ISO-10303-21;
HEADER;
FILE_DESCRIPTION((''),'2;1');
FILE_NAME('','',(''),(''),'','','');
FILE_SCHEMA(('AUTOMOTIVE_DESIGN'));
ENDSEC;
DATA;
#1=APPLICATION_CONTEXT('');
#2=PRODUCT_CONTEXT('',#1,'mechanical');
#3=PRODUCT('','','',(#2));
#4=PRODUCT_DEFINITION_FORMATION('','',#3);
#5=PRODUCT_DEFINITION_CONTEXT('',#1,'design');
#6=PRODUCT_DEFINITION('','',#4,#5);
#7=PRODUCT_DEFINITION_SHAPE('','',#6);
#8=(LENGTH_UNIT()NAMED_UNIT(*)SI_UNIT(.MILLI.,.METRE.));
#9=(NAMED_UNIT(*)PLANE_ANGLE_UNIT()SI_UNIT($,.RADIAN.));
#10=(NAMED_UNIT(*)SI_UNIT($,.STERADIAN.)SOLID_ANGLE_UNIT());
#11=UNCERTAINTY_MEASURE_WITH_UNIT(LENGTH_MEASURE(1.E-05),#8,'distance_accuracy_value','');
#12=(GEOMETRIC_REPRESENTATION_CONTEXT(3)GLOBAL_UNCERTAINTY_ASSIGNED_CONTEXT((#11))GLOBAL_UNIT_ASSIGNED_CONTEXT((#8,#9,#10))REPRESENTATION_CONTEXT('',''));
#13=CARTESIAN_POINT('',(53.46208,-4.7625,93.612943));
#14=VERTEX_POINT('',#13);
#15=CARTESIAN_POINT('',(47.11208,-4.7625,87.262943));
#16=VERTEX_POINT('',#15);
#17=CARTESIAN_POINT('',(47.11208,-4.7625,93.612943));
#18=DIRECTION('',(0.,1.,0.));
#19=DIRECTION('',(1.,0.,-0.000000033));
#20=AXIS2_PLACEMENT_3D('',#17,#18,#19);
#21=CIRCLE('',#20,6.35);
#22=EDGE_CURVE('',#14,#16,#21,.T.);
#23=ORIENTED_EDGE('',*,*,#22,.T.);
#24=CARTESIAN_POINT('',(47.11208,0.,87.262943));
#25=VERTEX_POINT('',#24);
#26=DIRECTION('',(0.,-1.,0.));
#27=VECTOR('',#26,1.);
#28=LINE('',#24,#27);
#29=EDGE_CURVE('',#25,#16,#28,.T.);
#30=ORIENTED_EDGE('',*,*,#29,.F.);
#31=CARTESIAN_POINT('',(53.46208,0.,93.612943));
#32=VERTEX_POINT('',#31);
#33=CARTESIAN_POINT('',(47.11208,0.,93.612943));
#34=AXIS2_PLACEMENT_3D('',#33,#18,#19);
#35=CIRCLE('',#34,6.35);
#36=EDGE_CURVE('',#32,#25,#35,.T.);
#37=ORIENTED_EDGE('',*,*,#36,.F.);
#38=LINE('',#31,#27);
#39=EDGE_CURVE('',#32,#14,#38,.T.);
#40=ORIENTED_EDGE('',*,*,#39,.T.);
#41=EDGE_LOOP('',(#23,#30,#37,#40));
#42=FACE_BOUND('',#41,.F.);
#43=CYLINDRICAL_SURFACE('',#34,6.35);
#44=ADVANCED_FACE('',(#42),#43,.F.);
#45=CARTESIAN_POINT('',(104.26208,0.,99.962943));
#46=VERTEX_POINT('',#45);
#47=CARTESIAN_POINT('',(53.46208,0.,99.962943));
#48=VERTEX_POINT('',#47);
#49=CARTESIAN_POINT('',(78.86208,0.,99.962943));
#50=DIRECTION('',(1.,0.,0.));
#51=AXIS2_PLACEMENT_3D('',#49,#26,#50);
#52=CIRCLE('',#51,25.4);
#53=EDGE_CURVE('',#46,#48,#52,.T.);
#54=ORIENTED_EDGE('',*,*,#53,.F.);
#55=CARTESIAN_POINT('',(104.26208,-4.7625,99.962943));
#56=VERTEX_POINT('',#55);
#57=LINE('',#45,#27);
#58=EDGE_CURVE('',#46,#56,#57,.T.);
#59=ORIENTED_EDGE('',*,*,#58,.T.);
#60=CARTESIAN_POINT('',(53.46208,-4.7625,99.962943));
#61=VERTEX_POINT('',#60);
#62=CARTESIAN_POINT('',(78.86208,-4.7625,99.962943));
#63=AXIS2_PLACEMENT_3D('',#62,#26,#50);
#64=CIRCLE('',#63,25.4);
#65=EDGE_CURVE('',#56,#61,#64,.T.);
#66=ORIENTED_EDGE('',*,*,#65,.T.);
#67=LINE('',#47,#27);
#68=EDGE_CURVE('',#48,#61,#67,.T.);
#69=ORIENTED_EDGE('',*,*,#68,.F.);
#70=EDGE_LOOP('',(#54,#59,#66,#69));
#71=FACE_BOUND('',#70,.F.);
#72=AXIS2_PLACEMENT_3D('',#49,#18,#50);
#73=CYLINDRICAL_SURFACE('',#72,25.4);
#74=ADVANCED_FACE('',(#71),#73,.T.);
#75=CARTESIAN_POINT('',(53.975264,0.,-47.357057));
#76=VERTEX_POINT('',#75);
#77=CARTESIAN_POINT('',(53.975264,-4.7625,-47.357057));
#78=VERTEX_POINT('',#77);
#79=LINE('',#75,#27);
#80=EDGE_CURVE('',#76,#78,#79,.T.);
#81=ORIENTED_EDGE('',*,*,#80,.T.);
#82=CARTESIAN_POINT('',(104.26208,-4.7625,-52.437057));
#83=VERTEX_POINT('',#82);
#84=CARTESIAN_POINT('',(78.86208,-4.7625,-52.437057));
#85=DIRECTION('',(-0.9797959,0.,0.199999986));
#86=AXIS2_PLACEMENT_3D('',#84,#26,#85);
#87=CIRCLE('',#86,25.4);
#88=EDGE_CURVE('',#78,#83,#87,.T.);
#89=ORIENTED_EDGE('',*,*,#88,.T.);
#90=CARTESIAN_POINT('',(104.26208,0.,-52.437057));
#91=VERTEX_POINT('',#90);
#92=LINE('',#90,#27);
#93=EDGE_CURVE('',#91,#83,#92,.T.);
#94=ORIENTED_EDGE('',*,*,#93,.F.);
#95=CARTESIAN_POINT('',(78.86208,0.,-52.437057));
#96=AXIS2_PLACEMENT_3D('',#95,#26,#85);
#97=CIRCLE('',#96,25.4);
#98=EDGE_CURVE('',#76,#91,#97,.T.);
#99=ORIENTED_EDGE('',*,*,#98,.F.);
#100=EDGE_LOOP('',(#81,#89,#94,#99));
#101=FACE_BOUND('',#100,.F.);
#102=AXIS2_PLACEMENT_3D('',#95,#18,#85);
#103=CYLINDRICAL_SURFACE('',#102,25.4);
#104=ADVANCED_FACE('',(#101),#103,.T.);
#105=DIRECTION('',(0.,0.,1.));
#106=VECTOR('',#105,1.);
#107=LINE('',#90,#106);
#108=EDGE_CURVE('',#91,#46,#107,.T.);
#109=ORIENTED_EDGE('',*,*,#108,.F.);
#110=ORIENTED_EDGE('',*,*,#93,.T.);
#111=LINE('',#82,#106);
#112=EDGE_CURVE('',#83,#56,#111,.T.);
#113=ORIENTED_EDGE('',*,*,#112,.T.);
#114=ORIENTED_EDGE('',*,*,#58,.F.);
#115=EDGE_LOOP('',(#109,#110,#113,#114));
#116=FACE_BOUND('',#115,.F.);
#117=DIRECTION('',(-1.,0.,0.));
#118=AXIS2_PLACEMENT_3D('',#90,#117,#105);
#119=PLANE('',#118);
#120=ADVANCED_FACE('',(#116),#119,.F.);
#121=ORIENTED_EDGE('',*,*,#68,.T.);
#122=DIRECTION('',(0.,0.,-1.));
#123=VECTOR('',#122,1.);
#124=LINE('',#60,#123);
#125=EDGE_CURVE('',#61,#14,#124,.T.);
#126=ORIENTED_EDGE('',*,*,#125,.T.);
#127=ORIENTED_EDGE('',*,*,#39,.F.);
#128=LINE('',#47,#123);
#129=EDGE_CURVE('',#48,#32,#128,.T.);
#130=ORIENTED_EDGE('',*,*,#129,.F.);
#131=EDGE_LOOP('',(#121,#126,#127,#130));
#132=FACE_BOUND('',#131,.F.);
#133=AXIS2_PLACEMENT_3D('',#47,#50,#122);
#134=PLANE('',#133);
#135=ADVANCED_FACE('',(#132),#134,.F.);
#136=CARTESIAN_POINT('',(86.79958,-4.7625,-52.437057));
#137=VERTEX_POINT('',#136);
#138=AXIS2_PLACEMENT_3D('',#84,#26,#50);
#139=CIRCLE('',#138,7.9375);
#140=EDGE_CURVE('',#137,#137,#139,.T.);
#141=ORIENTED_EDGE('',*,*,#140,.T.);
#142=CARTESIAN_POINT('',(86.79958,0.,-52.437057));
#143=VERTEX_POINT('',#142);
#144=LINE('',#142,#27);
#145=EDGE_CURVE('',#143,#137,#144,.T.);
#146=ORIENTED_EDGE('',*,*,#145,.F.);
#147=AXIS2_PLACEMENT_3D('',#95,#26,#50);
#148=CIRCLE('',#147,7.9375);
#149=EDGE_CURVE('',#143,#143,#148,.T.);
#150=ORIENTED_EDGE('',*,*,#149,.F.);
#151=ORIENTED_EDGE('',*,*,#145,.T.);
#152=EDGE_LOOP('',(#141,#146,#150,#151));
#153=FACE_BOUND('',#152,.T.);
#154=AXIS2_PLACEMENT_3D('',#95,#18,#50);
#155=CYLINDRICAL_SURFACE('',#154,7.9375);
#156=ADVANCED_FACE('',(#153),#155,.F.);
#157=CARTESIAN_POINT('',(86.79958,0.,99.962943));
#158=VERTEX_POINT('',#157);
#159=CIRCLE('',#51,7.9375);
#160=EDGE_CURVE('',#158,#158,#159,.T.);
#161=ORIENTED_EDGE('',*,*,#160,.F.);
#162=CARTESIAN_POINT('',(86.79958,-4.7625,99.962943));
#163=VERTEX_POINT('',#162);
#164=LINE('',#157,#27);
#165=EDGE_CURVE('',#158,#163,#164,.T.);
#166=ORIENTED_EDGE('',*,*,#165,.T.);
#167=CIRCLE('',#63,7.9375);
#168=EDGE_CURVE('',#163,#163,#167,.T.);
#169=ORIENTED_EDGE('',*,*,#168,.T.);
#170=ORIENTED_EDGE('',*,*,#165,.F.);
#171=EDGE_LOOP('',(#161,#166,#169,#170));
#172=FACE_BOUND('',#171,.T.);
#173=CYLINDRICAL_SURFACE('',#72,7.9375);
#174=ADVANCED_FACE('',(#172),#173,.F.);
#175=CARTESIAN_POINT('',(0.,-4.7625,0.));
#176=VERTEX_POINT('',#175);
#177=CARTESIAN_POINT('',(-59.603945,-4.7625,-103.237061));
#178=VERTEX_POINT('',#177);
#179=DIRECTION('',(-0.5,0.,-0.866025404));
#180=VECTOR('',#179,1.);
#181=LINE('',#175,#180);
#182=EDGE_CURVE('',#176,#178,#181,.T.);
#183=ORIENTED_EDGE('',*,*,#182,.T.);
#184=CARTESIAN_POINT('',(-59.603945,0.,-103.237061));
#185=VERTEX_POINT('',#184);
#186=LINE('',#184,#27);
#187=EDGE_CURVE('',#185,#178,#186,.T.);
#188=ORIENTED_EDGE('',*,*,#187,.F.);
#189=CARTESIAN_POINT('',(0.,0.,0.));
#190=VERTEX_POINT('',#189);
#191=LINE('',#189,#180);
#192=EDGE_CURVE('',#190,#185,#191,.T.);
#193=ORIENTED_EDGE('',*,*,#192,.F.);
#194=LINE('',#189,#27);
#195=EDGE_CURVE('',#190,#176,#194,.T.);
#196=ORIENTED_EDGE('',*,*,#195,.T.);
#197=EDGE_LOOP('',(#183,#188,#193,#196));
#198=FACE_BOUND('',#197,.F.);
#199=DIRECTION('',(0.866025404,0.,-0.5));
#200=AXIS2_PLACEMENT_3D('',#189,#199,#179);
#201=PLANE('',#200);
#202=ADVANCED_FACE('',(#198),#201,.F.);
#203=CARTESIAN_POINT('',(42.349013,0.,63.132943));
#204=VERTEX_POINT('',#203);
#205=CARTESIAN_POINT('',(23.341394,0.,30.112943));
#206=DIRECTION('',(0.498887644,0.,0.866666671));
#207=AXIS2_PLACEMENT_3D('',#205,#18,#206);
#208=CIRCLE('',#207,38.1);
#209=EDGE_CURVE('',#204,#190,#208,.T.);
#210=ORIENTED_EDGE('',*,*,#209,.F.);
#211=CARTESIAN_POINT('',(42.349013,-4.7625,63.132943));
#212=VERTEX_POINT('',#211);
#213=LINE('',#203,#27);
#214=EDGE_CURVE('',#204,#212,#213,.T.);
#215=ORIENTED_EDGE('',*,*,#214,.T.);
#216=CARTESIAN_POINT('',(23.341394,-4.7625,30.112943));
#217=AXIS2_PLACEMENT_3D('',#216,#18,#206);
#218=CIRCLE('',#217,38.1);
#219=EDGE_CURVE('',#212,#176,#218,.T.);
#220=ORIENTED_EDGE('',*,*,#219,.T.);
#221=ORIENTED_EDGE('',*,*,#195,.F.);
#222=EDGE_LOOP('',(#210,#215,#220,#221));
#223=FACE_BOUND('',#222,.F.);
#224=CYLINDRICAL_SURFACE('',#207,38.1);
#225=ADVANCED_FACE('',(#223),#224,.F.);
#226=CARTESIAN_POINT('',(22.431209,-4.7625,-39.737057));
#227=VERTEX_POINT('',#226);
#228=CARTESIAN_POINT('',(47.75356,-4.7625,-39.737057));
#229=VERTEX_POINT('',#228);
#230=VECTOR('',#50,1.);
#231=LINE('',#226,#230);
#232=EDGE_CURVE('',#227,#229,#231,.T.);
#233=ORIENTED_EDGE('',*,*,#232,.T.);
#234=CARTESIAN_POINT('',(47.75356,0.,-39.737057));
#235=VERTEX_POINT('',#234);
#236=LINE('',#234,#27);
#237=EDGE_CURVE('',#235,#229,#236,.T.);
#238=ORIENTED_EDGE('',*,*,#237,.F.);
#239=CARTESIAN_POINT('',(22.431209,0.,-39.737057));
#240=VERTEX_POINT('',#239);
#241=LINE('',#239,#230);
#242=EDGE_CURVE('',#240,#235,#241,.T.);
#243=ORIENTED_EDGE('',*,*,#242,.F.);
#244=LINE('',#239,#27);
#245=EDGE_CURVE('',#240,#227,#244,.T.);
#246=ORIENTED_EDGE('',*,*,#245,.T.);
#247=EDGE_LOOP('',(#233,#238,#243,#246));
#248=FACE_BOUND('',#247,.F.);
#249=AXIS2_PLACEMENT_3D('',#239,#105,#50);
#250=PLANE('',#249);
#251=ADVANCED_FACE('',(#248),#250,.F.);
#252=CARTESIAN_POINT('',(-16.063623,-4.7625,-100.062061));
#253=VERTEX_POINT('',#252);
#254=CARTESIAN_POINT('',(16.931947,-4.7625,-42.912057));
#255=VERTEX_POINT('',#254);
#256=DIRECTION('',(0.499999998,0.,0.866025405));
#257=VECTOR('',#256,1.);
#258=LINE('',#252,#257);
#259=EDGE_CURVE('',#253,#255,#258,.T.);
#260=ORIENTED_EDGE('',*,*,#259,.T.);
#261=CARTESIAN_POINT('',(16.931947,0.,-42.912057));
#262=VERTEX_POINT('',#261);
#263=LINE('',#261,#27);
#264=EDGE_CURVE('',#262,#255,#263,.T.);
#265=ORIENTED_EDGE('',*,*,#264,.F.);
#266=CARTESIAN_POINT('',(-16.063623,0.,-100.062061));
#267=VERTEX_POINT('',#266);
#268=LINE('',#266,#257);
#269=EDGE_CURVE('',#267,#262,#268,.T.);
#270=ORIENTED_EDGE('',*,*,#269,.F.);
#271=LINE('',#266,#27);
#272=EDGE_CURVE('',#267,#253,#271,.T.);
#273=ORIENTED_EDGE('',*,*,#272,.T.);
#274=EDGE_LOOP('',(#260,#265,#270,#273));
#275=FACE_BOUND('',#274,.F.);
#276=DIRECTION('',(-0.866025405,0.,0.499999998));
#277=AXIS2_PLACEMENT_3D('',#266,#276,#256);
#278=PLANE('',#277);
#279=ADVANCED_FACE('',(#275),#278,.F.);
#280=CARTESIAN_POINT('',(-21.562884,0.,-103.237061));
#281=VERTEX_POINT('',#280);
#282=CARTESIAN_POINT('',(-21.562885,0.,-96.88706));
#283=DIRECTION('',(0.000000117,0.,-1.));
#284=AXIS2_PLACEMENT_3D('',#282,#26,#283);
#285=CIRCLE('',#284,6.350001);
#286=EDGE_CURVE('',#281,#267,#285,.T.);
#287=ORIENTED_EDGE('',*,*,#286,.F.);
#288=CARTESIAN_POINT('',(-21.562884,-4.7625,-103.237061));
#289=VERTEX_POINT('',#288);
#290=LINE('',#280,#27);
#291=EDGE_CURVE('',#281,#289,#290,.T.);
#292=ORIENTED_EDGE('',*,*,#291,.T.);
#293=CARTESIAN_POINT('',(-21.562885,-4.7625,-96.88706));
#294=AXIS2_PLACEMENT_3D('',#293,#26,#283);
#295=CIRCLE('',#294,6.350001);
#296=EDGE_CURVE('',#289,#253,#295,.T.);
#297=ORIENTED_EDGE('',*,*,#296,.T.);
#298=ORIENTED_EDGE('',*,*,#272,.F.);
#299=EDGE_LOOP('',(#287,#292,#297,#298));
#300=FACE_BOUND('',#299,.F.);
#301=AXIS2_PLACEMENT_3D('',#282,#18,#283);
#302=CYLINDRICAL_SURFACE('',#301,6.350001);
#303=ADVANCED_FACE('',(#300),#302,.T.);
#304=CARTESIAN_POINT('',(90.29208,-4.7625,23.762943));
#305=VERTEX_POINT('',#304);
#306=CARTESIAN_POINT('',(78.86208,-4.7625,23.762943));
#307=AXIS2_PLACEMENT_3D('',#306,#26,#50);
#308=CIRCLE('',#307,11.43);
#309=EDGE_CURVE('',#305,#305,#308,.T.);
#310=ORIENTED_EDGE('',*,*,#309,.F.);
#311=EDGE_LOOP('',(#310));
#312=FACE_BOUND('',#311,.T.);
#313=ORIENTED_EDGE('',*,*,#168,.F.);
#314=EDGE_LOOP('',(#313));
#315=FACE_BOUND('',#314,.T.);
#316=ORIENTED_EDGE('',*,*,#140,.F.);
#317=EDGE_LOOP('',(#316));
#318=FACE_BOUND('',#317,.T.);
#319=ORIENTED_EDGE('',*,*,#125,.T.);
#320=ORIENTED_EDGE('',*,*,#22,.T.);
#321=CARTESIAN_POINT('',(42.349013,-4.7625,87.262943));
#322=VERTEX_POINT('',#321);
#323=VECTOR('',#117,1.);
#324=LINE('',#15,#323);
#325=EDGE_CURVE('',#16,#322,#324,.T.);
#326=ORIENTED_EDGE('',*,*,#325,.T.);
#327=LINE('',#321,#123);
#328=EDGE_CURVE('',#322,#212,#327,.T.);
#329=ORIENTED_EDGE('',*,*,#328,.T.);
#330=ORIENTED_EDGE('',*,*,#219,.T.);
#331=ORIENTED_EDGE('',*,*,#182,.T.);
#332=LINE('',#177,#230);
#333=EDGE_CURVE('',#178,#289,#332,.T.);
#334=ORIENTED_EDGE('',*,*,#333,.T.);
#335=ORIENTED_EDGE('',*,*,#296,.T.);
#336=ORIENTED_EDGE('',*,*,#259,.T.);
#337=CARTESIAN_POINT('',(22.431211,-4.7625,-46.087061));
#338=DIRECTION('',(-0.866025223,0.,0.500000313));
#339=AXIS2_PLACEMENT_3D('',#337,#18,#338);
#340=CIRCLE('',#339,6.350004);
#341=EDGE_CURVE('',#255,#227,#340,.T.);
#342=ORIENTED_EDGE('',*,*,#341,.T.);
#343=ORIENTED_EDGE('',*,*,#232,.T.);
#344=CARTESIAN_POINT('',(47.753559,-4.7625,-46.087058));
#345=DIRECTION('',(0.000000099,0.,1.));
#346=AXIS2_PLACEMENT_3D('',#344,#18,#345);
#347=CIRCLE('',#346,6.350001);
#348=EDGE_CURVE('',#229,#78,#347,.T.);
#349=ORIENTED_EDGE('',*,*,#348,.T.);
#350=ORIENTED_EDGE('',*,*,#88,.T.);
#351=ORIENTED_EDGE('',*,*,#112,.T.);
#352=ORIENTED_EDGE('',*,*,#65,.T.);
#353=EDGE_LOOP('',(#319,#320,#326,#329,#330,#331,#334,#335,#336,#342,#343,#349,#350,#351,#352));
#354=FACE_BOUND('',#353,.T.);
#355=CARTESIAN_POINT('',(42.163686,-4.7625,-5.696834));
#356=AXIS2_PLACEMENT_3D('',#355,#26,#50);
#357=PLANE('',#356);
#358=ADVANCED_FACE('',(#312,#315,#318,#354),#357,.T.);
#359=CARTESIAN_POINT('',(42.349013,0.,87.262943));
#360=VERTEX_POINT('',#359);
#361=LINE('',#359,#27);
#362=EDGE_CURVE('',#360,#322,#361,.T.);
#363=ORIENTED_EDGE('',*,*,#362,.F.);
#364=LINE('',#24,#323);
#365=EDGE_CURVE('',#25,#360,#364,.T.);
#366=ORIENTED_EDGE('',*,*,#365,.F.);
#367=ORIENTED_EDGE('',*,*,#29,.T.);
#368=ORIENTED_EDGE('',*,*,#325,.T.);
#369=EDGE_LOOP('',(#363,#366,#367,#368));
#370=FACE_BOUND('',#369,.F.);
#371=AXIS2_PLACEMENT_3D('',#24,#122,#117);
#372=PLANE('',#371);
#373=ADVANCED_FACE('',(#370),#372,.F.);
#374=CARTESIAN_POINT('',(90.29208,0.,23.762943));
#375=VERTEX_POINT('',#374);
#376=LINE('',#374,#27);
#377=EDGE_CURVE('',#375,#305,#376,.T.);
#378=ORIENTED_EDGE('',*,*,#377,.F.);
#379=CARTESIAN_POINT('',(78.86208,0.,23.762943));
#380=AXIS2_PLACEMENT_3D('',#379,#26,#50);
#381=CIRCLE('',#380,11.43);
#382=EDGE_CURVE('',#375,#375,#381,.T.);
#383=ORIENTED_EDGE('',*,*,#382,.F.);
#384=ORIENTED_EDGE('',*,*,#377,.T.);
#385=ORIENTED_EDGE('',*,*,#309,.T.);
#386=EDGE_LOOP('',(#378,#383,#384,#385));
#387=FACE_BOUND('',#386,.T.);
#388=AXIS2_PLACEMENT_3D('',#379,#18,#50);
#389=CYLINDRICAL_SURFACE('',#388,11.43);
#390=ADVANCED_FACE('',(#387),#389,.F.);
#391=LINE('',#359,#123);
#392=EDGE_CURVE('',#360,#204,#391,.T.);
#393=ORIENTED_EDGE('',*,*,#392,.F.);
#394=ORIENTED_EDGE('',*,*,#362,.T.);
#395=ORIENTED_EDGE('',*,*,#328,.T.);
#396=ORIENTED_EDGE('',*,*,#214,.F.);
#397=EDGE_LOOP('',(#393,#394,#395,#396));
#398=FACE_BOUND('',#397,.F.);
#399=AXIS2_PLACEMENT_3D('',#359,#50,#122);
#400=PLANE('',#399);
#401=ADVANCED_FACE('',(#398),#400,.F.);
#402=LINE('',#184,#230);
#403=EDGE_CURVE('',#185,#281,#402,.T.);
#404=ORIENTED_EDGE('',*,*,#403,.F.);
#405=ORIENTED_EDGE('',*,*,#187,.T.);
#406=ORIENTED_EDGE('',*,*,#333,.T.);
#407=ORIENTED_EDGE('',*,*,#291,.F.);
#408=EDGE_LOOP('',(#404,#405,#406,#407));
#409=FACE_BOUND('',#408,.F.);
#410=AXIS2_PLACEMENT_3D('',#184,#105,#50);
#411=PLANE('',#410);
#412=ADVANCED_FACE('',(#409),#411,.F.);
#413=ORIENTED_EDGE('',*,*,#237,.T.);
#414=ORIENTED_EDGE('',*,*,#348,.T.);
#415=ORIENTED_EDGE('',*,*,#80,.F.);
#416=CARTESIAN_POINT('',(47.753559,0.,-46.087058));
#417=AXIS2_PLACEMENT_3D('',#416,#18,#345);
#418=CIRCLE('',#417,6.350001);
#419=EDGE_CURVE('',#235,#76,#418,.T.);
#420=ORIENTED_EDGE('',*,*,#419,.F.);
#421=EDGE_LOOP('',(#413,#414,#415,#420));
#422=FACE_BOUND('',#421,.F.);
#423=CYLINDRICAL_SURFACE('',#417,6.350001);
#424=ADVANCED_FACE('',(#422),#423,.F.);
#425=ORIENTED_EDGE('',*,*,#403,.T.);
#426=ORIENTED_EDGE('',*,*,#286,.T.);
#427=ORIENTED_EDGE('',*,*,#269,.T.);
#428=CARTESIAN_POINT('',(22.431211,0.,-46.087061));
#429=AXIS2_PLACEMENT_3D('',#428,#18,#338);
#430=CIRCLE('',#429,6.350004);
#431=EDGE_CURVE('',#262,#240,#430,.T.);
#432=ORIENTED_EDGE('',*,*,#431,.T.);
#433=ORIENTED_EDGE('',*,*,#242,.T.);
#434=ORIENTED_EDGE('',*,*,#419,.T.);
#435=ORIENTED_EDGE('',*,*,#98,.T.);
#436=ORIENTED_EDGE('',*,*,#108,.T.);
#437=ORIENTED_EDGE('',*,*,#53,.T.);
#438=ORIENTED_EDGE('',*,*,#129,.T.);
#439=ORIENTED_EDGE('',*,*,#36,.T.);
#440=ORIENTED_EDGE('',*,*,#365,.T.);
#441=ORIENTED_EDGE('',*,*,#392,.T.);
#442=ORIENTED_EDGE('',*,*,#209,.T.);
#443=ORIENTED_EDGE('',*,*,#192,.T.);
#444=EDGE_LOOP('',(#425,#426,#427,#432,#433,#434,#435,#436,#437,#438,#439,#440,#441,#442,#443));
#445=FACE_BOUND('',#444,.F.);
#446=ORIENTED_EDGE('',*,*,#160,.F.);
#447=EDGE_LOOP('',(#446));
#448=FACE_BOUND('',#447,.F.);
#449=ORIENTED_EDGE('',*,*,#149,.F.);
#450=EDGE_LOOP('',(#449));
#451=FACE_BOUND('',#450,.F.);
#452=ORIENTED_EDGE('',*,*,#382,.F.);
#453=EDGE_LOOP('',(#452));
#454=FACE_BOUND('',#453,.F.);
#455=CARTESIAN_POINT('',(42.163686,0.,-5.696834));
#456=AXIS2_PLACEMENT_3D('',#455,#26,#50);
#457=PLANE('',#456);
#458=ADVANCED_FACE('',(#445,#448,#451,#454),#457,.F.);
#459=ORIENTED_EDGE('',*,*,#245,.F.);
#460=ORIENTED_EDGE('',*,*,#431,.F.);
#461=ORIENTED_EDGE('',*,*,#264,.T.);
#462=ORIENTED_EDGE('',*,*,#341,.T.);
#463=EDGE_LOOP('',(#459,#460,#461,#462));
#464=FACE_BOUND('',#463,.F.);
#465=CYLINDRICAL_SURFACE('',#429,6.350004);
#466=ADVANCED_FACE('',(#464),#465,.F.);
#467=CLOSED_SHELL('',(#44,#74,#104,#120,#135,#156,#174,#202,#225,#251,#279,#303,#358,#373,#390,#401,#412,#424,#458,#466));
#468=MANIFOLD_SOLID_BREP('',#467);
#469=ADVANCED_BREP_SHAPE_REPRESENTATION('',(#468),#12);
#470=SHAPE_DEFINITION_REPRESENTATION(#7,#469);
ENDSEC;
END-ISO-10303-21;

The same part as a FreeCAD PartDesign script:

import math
import FreeCAD as App
import Part
import Sketcher

V = App.Vector
Q = App.Units.Quantity

doc = App.newDocument("Part")
body = doc.addObject("PartDesign::Body", "Body")

sketch1 = doc.addObject("Sketcher::SketchObject", "Sketch")
body.addObject(sketch1)
sketch1.AttachmentSupport = (doc.XZ_Plane, [""])
sketch1.MapMode = "FlatFace"
sketch1.addGeometry([
    Part.LineSegment(V(47.1, 87.3, 0), V(42.3, 87.3, 0)),
    Part.LineSegment(V(42.3, 87.3, 0), V(42.3, 63.1, 0)),
    Part.ArcOfCircle(Part.Circle(V(23.3, 30.1, 0), V(0, 0, 1), 38.1), math.radians(-128), math.radians(60)),
    Part.LineSegment(V(0, 0, 0), V(-59.6, -103.2, 0)),
    Part.LineSegment(V(-59.6, -103.2, 0), V(-21.6, -103.2, 0)),
    Part.ArcOfCircle(Part.Circle(V(-21.6, -96.9, 0), V(0, 0, 1), 6.4), math.radians(-90), math.radians(-30)),
    Part.LineSegment(V(-16.1, -100.1, 0), V(16.9, -42.9, 0)),
    Part.ArcOfCircle(Part.Circle(V(22.4, -46.1, 0), V(0, 0, 1), 6.4), math.radians(90), math.radians(150)),
    Part.LineSegment(V(22.4, -39.7, 0), V(47.8, -39.7, 0)),
    Part.ArcOfCircle(Part.Circle(V(47.8, -46.1, 0), V(0, 0, 1), 6.4), math.radians(-12), math.radians(90)),
    Part.ArcOfCircle(Part.Circle(V(78.9, -52.4, 0), V(0, 0, 1), 25.4), math.radians(168), math.radians(360)),
    Part.LineSegment(V(104.3, -52.4, 0), V(104.3, 100, 0)),
    Part.ArcOfCircle(Part.Circle(V(78.9, 100, 0), V(0, 0, 1), 25.4), math.radians(0), math.radians(180)),
    Part.LineSegment(V(53.5, 100, 0), V(53.5, 93.6, 0)),
    Part.ArcOfCircle(Part.Circle(V(47.1, 93.6, 0), V(0, 0, 1), 6.4), math.radians(-90), math.radians(0)),
    Part.Circle(V(78.9, -52.4, 0), V(0, 0, 1), 7.9),
    Part.Circle(V(78.9, 23.8, 0), V(0, 0, 1), 11.4),
    Part.Circle(V(78.9, 100, 0), V(0, 0, 1), 7.9),
], False)
sketch1.addConstraint([
    Sketcher.Constraint("Coincident", 0, 2, 1, 1),
    Sketcher.Constraint("Coincident", 1, 2, 2, 2),
    Sketcher.Constraint("Coincident", 2, 1, 3, 1),
    Sketcher.Constraint("Coincident", 3, 2, 4, 1),
    Sketcher.Constraint("Tangent", 4, 2, 5, 1),
    Sketcher.Constraint("Tangent", 5, 2, 6, 1),
    Sketcher.Constraint("Tangent", 6, 2, 7, 2),
    Sketcher.Constraint("Tangent", 7, 1, 8, 1),
    Sketcher.Constraint("Tangent", 8, 2, 9, 2),
    Sketcher.Constraint("Tangent", 9, 1, 10, 1),
    Sketcher.Constraint("Tangent", 10, 2, 11, 1),
    Sketcher.Constraint("Tangent", 11, 2, 12, 1),
    Sketcher.Constraint("Tangent", 12, 2, 13, 1),
    Sketcher.Constraint("Tangent", 13, 2, 14, 2),
    Sketcher.Constraint("Tangent", 14, 1, 0, 1),
    Sketcher.Constraint("Horizontal", 0),
    Sketcher.Constraint("Vertical", 1),
    Sketcher.Constraint("Horizontal", 4),
    Sketcher.Constraint("Horizontal", 8),
    Sketcher.Constraint("Vertical", 11),
    Sketcher.Constraint("Vertical", 13),
    Sketcher.Constraint("Coincident", 2, 1, -1, 1),
    Sketcher.Constraint("Coincident", 15, 3, 10, 3),
    Sketcher.Constraint("Coincident", 17, 3, 12, 3),
    Sketcher.Constraint("Equal", 5, 9),
    Sketcher.Constraint("Equal", 10, 12),
    Sketcher.Constraint("Equal", 9, 14),
    Sketcher.Constraint("Equal", 15, 17),
    Sketcher.Constraint("Parallel", 3, 6),
    Sketcher.Constraint("Vertical", 15, 3, 16, 3),
    Sketcher.Constraint("Radius", 10, Q("1 in")),
    Sketcher.Constraint("Diameter", 16, Q("0.9 in")),
    Sketcher.Constraint("Radius", 2, Q("1.5 in")),
    Sketcher.Constraint("DistanceY", 11, 1, 11, 2, Q("6 in")),
    Sketcher.Constraint("Radius", 5, Q("0.25 in")),
    Sketcher.Constraint("Radius", 7, Q("0.2500002 in")),
    Sketcher.Constraint("Diameter", 15, Q("0.625 in")),
    Sketcher.Constraint("Angle", 3, Q("-120 deg")),
    Sketcher.Constraint("DistanceY", 5, 3, 2, 3, Q("5.0000001 in")),
    Sketcher.Constraint("DistanceY", 5, 3, 7, 3, Q("2 in")),
    Sketcher.Constraint("DistanceY", 10, 3, 16, 3, Q("3 in")),
    Sketcher.Constraint("DistanceY", 3, 2, 15, 3, Q("2.0000002 in")),
    Sketcher.Constraint("DistanceY", 1, 2, 1, 1, Q("0.95 in")),
    Sketcher.Constraint("DistanceY", 13, 2, 13, 1, Q("0.25 in")),
    Sketcher.Constraint("DistanceX", 4, 1, 4, 2, Q("38.041061 mm")),
    Sketcher.Constraint("DistanceX", 8, 1, 8, 2, Q("25.322351 mm")),
    Sketcher.Constraint("Distance", 3, Q("119.20789 mm")),
])
pad1 = doc.addObject("PartDesign::Pad", "Pad")
body.addObject(pad1)
pad1.Profile = sketch1
pad1.Length = Q("0.1875 in")

doc.recompute()
